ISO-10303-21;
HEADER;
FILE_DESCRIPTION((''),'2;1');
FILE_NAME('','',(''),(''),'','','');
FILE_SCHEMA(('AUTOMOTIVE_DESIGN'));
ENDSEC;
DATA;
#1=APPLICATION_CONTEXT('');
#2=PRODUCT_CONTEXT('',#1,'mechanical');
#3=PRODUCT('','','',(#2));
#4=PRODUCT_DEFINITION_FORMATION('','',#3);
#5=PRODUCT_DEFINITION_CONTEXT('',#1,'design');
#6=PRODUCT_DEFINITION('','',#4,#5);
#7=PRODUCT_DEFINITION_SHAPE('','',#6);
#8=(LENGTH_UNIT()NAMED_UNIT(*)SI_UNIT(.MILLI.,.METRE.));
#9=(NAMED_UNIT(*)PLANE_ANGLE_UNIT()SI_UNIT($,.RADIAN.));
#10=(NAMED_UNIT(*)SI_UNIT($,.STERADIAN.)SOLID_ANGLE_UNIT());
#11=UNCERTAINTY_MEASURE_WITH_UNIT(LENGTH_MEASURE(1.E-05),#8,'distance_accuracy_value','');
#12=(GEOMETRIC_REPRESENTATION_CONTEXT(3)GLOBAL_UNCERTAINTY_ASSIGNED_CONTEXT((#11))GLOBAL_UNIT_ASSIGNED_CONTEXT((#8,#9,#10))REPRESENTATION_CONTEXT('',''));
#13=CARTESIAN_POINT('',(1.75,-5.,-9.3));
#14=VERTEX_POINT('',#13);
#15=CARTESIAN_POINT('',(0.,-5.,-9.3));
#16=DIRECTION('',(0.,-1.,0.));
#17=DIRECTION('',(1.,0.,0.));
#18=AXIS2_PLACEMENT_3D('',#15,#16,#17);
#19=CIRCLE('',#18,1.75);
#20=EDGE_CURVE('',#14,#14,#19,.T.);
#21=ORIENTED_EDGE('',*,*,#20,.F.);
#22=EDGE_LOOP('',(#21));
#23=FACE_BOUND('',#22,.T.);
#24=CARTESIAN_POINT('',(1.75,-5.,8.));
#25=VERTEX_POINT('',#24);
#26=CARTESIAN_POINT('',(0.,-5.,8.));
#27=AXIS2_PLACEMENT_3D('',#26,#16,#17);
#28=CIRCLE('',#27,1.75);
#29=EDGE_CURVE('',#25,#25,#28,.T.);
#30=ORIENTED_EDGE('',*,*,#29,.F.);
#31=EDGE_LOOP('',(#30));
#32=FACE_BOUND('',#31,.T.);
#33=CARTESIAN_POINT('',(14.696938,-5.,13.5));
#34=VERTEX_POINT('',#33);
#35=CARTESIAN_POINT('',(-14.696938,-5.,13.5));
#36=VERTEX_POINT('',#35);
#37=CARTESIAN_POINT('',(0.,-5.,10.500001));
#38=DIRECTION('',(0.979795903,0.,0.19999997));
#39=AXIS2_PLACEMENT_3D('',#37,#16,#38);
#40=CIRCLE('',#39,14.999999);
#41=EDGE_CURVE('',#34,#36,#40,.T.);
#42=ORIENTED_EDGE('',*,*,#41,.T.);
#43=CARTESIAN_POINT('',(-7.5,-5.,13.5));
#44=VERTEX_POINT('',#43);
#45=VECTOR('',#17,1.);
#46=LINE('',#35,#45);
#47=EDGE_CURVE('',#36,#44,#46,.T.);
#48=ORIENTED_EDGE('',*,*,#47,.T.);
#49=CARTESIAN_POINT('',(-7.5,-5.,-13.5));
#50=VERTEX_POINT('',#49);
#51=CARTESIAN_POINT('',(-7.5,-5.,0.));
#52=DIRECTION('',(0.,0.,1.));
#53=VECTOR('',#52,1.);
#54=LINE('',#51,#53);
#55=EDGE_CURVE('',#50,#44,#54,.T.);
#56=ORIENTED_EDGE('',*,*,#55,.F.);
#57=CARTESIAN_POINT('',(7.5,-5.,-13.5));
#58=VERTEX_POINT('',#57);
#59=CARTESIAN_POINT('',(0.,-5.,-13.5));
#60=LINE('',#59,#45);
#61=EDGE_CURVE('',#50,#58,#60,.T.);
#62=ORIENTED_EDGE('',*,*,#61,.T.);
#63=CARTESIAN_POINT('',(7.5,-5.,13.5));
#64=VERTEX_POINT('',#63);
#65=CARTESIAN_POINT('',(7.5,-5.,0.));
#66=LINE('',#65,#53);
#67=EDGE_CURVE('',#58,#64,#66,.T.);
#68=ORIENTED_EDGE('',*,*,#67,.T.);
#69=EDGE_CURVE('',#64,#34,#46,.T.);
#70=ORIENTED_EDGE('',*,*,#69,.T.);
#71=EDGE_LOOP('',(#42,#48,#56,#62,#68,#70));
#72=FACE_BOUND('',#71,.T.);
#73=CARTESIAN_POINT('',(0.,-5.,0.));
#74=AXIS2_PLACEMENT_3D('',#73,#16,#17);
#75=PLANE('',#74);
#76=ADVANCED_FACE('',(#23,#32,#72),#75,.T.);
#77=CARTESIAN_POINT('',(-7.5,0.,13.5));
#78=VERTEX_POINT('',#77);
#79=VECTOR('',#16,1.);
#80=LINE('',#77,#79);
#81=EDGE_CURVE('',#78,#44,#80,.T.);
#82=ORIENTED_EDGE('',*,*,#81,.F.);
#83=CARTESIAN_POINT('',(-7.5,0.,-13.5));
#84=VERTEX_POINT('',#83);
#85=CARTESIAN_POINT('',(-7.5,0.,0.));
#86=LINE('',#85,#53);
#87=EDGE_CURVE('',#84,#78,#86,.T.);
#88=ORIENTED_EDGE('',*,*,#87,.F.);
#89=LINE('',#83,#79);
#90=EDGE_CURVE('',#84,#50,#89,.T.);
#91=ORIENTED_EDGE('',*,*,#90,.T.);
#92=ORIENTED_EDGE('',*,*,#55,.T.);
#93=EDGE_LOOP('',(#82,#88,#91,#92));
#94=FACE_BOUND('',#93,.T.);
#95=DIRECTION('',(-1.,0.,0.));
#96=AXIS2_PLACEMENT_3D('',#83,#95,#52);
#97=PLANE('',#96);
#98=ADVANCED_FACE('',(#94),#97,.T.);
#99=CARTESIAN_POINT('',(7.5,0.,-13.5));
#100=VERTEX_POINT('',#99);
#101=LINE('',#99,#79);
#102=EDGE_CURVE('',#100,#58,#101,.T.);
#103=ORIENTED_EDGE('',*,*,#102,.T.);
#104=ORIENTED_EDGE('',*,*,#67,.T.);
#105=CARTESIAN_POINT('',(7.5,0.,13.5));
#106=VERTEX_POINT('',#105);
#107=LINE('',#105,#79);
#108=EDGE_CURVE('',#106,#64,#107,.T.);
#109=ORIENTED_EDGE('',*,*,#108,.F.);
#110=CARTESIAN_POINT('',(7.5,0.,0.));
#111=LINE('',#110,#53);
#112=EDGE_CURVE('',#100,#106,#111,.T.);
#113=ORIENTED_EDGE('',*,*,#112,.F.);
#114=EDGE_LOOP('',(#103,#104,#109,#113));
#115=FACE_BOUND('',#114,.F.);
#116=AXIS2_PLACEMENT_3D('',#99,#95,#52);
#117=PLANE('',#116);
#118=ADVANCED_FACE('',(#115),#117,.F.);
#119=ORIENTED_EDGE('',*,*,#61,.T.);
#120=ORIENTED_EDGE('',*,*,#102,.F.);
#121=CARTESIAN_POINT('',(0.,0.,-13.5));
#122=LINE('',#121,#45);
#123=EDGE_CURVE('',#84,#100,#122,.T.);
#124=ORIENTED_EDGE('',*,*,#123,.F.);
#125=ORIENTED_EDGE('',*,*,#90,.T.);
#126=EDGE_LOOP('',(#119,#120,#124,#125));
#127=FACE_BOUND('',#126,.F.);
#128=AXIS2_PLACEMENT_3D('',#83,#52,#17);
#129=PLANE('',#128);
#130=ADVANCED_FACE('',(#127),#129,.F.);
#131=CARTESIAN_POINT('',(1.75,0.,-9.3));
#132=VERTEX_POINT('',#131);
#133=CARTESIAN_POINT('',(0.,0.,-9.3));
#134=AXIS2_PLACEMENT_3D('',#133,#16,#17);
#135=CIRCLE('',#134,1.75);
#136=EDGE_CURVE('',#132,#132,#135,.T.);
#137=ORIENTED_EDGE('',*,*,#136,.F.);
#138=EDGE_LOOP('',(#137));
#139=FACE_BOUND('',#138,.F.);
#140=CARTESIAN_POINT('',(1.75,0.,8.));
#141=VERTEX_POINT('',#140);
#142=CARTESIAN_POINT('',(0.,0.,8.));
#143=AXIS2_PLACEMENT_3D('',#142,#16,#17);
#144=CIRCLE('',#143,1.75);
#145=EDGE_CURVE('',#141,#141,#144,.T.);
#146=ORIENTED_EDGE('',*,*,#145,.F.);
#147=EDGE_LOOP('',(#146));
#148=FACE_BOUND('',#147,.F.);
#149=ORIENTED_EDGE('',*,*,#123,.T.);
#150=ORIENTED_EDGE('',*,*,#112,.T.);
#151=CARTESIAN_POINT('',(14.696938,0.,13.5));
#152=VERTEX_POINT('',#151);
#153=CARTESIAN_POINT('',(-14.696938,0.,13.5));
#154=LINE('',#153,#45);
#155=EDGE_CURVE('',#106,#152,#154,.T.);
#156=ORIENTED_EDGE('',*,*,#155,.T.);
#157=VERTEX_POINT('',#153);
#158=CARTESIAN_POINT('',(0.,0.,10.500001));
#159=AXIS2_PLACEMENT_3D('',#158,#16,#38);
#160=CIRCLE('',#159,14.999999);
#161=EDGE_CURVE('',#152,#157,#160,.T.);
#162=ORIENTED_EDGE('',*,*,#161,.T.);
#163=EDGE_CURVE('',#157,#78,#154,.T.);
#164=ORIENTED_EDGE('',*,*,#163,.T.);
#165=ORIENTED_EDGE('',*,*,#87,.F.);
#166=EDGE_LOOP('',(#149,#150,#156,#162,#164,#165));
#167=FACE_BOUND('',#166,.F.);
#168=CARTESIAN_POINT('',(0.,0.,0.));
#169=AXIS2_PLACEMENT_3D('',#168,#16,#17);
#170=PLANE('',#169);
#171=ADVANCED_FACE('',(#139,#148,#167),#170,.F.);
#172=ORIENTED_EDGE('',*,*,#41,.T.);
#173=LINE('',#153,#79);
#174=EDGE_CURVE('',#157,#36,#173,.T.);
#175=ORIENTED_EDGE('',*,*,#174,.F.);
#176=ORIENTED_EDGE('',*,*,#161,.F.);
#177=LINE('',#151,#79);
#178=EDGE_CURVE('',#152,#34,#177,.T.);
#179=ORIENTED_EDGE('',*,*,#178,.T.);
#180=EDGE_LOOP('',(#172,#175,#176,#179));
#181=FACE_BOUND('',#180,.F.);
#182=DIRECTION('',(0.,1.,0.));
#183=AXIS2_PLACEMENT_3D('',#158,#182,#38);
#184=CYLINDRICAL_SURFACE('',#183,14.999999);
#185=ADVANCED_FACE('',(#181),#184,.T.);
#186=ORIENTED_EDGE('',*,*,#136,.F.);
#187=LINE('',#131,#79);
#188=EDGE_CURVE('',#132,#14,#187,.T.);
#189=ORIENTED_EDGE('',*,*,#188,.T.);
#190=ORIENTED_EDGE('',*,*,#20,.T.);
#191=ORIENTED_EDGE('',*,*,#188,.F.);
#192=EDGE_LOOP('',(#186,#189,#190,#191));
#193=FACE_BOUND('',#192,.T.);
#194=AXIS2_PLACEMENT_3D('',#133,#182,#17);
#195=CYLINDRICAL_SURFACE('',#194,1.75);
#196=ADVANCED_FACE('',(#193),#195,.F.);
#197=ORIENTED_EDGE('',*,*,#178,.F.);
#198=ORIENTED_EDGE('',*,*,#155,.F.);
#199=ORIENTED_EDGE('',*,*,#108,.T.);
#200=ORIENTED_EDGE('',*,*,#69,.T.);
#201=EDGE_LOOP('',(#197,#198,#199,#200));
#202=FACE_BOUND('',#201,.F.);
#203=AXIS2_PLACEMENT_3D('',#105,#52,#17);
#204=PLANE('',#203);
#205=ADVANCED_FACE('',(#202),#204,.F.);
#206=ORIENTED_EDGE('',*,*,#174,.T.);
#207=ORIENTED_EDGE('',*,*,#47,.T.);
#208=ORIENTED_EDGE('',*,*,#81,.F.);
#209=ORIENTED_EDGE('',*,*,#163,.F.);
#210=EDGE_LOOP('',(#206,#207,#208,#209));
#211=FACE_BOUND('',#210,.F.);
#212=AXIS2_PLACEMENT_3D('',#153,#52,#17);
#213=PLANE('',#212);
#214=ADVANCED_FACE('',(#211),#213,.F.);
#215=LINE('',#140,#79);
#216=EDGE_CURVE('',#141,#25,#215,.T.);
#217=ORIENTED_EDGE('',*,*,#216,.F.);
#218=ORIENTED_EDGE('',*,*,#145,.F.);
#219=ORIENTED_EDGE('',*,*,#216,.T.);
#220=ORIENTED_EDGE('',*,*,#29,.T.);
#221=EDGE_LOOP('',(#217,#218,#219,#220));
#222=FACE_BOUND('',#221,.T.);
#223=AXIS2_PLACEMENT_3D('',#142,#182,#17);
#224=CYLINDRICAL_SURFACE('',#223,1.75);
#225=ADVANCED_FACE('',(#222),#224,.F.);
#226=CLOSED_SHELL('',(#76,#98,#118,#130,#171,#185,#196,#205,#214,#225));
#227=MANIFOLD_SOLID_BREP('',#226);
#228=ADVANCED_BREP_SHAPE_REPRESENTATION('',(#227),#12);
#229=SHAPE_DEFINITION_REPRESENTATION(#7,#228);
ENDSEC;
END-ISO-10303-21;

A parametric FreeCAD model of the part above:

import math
import FreeCAD as App
import Part
import Sketcher

V = App.Vector
Q = App.Units.Quantity

doc = App.newDocument("Part")
body = doc.addObject("PartDesign::Body", "Body")

sketch1 = body.newObject("Sketcher::SketchObject", "Sketch")
sketch1.AttachmentSupport = (doc.getObject("XZ_Plane"), [""])
sketch1.MapMode = "FlatFace"
sketch1.addGeometry([
    Part.LineSegment(V(-7.5, 13.5, 0), V(-7.5, -13.5, 0)),
    Part.LineSegment(V(-7.5, -13.5, 0), V(7.5, -13.5, 0)),
    Part.LineSegment(V(7.5, -13.5, 0), V(7.5, 13.5, 0)),
    Part.LineSegment(V(7.5, 13.5, 0), V(14.7, 13.5, 0)),
    Part.ArcOfCircle(Part.Circle(V(0, 10.5, 0), V(0, 0, 1), 15), math.radians(12), math.radians(168)),
    Part.LineSegment(V(-14.7, 13.5, 0), V(-7.5, 13.5, 0)),
    Part.Circle(V(0, -9.3, 0), V(0, 0, 1), 1.8),
    Part.Circle(V(0, 8, 0), V(0, 0, 1), 1.8),
], False)
sketch1.addConstraint([
    Sketcher.Constraint("Coincident", 0, 2, 1, 1),
    Sketcher.Constraint("Coincident", 1, 2, 2, 1),
    Sketcher.Constraint("Coincident", 2, 2, 3, 1),
    Sketcher.Constraint("Coincident", 3, 2, 4, 1),
    Sketcher.Constraint("Coincident", 4, 2, 5, 1),
    Sketcher.Constraint("Coincident", 5, 2, 0, 1),
    Sketcher.Constraint("Vertical", 0),
    Sketcher.Constraint("Horizontal", 1),
    Sketcher.Constraint("Vertical", 2),
    Sketcher.Constraint("Horizontal", 3),
    Sketcher.Constraint("Horizontal", 5),
    Sketcher.Constraint("Equal", 6, 7),
    Sketcher.Constraint("Symmetric", 0, 2, 2, 2, -1, 1),
    Sketcher.Constraint("Symmetric", 3, 2, 4, 2, -2),
    Sketcher.Constraint("PointOnObject", 6, 3, -2),
    Sketcher.Constraint("PointOnObject", 7, 3, -2),
    Sketcher.Constraint("Radius", 4, Q("14.999999 mm")),
    Sketcher.Constraint("Diameter", 6, Q("3.5 mm")),
    Sketcher.Constraint("DistanceX", 1, 1, 1, 2, Q("15 mm")),
    Sketcher.Constraint("DistanceY", 0, 2, 0, 1, Q("27 mm")),
    Sketcher.Constraint("DistanceY", -1, 1, 7, 3, Q("8 mm")),
    Sketcher.Constraint("DistanceY", 0, 2, 4, 3, Q("24.000001 mm")),
    Sketcher.Constraint("DistanceY", 6, 3, -1, 1, Q("9.3 mm")),
])
pad1 = body.newObject("PartDesign::Pad", "Pad")
pad1.Profile = sketch1
pad1.Length = 5

doc.recompute()
